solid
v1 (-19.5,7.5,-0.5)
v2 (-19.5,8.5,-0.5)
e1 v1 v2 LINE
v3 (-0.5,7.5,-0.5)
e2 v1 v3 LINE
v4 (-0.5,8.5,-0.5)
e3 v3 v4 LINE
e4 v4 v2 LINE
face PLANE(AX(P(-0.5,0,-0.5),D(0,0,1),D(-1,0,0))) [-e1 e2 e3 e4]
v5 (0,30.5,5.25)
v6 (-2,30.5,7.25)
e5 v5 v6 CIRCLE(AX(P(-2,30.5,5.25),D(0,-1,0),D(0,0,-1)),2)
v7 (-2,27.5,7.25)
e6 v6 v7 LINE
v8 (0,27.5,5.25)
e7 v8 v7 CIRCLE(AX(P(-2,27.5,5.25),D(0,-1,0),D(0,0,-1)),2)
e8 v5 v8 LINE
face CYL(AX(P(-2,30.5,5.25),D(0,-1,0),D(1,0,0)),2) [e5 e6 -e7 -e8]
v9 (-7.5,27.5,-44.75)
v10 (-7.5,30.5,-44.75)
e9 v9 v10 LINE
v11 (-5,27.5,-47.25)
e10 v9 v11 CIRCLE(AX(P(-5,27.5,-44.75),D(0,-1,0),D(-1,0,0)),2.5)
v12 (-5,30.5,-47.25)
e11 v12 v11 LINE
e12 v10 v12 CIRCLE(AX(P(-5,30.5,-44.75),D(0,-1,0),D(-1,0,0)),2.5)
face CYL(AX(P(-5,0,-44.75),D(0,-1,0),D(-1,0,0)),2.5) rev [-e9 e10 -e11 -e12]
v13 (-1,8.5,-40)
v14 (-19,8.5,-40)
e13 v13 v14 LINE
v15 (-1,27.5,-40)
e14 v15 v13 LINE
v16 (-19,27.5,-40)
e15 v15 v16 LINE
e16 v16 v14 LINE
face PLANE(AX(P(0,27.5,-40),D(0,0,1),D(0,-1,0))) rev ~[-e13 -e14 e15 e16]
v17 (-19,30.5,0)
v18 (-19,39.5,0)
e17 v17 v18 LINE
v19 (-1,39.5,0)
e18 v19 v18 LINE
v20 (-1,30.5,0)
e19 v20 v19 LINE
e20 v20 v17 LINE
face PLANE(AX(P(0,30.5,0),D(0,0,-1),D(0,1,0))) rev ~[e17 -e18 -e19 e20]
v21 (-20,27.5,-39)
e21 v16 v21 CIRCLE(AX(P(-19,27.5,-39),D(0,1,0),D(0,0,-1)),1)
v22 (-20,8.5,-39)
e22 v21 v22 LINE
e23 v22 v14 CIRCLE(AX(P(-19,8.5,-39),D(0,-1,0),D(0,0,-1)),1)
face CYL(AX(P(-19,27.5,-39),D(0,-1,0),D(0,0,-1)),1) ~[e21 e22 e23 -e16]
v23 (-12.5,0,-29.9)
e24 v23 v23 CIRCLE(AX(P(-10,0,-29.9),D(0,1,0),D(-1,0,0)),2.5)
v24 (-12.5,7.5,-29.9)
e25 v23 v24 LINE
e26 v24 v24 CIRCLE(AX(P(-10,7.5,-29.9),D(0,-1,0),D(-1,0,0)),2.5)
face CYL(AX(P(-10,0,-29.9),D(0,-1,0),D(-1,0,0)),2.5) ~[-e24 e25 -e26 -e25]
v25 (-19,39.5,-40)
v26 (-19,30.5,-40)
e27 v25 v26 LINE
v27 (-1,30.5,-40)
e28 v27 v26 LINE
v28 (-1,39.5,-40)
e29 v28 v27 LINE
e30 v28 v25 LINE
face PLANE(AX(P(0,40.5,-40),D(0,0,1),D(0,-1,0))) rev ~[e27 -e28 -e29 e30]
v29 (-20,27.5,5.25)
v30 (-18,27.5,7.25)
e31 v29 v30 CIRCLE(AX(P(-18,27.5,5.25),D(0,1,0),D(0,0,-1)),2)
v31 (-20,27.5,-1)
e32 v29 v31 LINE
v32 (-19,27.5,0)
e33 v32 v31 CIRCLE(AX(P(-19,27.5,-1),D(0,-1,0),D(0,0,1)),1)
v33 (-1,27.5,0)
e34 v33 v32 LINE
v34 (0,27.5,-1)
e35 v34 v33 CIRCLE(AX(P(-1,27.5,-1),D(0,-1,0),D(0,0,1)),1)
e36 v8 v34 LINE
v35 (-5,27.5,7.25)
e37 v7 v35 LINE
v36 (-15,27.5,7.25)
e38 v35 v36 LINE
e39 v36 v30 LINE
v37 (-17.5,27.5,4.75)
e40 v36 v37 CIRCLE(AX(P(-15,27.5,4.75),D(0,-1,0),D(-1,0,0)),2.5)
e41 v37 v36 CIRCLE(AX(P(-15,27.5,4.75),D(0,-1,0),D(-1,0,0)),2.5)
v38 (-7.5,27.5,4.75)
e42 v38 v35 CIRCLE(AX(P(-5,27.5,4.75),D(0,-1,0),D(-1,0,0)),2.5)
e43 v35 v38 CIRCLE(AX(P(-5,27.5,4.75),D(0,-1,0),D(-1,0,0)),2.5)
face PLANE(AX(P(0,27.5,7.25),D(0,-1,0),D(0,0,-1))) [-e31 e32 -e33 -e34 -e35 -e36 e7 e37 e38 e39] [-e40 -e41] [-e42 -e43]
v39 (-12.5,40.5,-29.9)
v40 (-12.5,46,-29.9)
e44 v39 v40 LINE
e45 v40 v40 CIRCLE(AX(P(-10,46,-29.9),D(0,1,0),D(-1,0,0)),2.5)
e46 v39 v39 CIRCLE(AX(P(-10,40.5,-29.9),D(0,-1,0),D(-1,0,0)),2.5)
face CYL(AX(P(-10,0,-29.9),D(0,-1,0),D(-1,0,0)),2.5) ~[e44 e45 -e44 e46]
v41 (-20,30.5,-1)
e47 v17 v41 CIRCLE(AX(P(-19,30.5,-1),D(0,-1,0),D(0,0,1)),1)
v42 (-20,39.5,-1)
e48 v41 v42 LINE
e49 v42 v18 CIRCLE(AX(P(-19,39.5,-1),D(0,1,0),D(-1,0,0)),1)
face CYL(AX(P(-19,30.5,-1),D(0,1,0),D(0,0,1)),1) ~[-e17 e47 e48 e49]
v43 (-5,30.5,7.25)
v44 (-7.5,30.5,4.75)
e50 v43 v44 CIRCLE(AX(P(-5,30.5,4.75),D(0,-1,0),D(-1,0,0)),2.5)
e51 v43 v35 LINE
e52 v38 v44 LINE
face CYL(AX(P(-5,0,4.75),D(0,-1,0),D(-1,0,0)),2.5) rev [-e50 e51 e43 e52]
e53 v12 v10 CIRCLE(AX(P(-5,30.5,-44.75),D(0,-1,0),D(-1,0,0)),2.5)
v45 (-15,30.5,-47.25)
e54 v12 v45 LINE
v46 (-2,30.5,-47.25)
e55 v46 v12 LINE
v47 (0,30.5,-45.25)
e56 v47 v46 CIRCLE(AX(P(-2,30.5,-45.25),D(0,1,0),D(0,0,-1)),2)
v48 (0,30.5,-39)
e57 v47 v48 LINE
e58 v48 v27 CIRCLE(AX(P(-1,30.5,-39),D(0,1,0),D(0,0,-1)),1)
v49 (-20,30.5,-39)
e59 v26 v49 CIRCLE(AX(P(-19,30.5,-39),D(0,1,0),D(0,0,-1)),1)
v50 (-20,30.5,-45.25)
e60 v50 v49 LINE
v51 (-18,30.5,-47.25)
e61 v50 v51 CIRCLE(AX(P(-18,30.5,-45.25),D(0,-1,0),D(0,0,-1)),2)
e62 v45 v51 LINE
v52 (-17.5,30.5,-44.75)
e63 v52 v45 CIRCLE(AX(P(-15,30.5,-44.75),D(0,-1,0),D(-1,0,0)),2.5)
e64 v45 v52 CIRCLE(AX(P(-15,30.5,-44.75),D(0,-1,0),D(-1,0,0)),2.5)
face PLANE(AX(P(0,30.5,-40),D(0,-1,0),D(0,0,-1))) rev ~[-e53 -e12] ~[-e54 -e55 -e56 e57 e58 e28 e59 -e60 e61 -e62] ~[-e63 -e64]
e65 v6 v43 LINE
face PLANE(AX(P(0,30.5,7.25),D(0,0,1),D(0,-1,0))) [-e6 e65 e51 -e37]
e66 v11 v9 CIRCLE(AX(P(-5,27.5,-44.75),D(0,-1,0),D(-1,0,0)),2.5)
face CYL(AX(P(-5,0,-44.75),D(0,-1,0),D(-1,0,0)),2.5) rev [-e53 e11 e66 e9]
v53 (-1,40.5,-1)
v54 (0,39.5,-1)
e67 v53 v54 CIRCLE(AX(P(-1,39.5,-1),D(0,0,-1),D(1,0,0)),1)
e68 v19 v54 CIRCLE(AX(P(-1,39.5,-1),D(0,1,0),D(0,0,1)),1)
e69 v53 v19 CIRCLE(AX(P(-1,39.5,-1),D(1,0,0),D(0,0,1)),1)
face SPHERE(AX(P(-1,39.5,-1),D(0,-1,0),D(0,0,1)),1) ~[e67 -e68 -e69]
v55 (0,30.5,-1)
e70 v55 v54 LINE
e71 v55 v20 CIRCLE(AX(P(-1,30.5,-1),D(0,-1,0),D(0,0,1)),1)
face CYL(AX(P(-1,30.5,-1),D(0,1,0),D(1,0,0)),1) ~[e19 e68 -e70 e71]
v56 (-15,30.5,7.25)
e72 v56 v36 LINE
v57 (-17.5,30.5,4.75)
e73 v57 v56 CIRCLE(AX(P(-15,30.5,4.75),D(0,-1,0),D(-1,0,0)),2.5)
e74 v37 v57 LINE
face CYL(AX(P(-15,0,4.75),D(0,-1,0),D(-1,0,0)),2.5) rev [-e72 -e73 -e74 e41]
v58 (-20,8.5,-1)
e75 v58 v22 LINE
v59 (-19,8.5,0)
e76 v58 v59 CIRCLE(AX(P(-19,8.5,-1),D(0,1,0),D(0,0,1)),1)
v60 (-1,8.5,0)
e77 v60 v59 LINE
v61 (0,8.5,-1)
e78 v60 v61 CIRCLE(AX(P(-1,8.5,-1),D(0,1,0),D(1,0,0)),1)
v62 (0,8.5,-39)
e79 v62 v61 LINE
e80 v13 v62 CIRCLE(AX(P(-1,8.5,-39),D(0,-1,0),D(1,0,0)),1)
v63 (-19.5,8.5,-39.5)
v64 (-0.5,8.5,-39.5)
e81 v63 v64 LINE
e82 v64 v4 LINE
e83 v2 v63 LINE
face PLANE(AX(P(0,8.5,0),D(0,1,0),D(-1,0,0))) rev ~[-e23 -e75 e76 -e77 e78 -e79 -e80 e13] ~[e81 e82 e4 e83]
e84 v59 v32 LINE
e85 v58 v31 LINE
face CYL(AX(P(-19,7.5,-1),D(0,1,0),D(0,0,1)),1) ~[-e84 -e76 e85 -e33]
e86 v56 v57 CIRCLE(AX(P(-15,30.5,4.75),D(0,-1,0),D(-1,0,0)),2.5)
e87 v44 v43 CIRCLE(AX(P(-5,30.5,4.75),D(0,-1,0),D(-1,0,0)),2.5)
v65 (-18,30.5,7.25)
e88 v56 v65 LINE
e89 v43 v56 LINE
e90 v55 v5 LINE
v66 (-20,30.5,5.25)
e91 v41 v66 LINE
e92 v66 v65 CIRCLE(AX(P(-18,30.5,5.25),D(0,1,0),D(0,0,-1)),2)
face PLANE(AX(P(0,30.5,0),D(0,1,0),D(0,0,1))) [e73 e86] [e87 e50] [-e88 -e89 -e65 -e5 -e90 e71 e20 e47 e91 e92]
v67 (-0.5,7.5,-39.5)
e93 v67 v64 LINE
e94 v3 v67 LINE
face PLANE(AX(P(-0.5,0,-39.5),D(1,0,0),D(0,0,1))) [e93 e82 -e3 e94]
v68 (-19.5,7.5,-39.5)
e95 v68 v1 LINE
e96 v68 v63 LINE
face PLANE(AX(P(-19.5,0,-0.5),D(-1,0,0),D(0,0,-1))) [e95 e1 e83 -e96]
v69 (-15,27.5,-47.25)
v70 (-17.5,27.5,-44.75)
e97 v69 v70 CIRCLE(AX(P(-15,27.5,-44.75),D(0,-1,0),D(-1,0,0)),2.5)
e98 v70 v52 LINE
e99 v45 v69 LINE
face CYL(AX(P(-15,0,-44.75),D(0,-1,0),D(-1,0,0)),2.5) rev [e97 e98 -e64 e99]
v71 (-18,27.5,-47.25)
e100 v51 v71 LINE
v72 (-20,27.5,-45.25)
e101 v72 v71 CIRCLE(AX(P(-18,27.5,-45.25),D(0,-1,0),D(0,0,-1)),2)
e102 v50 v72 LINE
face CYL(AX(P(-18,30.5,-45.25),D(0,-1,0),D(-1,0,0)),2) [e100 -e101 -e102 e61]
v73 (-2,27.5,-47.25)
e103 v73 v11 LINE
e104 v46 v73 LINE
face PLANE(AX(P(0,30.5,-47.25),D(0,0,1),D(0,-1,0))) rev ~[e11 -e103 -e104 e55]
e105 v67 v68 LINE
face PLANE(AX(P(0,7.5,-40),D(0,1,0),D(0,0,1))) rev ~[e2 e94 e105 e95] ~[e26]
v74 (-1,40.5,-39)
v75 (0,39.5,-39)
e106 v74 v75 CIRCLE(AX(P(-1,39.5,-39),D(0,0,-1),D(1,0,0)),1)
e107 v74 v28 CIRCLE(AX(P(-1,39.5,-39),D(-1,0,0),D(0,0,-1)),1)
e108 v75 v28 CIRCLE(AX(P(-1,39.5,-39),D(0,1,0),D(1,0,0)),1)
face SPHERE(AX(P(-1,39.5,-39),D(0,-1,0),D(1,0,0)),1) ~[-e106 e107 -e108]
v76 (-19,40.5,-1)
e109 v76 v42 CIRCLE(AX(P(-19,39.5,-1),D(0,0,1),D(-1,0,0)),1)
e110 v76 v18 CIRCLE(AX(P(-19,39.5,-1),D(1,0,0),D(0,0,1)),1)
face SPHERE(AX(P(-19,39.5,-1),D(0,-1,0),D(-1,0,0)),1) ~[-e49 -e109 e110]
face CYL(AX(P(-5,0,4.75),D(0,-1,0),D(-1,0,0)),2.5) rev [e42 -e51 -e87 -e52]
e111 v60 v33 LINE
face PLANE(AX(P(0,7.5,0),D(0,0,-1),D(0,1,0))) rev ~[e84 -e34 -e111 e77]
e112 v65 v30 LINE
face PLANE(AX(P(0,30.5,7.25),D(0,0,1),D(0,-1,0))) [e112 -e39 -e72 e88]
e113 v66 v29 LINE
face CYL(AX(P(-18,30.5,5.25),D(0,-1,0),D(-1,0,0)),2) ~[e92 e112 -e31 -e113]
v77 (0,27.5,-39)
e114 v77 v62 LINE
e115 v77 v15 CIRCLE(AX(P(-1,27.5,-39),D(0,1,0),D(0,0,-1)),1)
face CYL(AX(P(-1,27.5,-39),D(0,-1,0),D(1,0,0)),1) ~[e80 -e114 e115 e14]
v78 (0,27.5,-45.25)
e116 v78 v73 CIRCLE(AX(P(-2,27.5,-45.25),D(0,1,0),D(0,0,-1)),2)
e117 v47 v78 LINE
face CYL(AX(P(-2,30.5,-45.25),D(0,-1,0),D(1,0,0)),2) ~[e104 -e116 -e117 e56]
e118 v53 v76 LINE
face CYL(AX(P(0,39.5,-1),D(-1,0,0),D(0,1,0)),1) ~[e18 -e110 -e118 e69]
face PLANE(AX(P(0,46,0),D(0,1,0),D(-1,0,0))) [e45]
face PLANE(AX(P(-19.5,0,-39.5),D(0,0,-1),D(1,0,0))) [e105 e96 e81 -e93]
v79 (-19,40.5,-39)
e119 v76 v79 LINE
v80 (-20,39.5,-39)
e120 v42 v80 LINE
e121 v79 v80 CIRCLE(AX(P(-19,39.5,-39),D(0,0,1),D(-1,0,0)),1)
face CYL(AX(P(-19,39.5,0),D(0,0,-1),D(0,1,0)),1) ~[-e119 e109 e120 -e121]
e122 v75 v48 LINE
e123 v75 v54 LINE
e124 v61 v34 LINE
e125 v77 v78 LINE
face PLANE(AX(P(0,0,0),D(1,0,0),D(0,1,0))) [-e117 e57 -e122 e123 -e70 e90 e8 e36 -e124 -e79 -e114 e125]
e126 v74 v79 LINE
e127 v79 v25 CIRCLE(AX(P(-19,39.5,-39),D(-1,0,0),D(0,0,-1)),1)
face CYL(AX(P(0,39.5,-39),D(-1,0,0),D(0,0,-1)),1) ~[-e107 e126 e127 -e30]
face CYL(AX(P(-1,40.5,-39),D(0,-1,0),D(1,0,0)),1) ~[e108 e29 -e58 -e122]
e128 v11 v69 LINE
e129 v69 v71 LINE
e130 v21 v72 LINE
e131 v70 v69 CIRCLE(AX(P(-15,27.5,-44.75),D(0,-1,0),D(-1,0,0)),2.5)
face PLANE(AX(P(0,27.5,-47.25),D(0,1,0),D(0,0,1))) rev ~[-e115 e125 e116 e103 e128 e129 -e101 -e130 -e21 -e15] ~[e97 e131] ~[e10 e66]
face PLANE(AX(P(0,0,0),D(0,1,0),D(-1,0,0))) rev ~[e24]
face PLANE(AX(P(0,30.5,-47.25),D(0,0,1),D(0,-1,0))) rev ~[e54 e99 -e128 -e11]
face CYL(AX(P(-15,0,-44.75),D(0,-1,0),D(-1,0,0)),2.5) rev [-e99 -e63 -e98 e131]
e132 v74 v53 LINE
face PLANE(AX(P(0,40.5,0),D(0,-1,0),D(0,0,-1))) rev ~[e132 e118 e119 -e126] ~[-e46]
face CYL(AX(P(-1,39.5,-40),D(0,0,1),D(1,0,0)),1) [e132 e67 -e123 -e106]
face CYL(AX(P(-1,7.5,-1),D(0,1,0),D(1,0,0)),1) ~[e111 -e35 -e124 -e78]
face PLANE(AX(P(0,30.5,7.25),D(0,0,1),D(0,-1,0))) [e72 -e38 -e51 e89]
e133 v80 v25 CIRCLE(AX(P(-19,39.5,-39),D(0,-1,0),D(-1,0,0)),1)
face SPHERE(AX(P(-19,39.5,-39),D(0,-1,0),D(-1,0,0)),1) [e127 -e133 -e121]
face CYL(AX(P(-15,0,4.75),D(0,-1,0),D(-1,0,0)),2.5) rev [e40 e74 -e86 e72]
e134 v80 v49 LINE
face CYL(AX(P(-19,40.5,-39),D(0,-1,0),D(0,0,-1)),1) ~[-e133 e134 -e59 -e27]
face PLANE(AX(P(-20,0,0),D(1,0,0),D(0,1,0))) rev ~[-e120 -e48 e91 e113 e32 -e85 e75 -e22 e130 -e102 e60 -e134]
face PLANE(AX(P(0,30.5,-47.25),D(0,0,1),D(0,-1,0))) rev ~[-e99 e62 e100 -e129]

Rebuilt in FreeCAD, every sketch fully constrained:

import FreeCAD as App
import Part
import Sketcher
Q = App.Units.Quantity


def edges_at(feature, points):
    """Names of the edges that pass closest to the given points."""
    edges = feature.Shape.Edges
    near = lambda p: min(range(len(edges)), key=lambda i: edges[i].distToShape(Part.Vertex(*p))[0])
    return sorted({f"Edge{near(p) + 1}" for p in points})


def add_polygon(sketch, points):
    """Adds a closed chain of lines whose ends are joined by coincident constraints."""
    first, n = sketch.GeometryCount, len(points)
    for a, b in zip(points, points[1:] + points[:1]):
        sketch.addGeometry(Part.LineSegment(App.Vector(*a, 0), App.Vector(*b, 0)), False)
    for i in range(n):
        sketch.addConstraint(Sketcher.Constraint("Coincident", first + i, 2, first + (i + 1) % n, 1))

doc = App.newDocument("Part")
params = doc.addObject("Spreadsheet::Sheet", "Params")
for row, (alias, value) in enumerate([
    ("sketch1_width", "20 mm"),
    ("sketch1_width2", "3 mm"),
    ("sketch1_height", "40 mm"),
    ("sketch1_height2", "7.25 mm"),
    ("pad1_length", "20 mm"),
    ("sketch2_diameter", "5 mm"),
    ("pocket1_length", "100 mm"),
    ("sketch3_diameter", "5 mm"),
    ("pad2_length", "46 mm"),
    ("fillet_radius", "2 mm"),
    ("fillet2_radius", "1 mm"),
    ("sketch4_width", "20 mm"),
    ("sketch4_height", "40 mm"),
    ("pocket2_length", "8.5 mm"),
], start=1):
    params.set(f"A{row}", alias)
    params.set(f"B{row}", "=" + value)
    params.setAlias(f"B{row}", alias)

body = doc.addObject("PartDesign::Body", "Body")

sketch1 = doc.addObject("Sketcher::SketchObject", "Sketch")
body.addObject(sketch1)
sketch1.AttachmentSupport = (doc.YZ_Plane, [""])
sketch1.MapMode = "FlatFace"
add_polygon(sketch1, [(27.5, 0), (7.5, 0), (7.5, -40), (27.5, -40), (27.5, -47.25), (30.5, -47.25), (30.5, -40), (40.5, -40), (40.5, 0), (30.5, 0), (30.5, 7.25), (27.5, 7.25)])
sketch1.addConstraint([
    Sketcher.Constraint("Horizontal", 0),
    Sketcher.Constraint("Vertical", 1),
    Sketcher.Constraint("Horizontal", 2),
    Sketcher.Constraint("Vertical", 3),
    Sketcher.Constraint("Horizontal", 4),
    Sketcher.Constraint("Vertical", 5),
    Sketcher.Constraint("Horizontal", 6),
    Sketcher.Constraint("Vertical", 7),
    Sketcher.Constraint("Horizontal", 8),
    Sketcher.Constraint("Vertical", 9),
    Sketcher.Constraint("Horizontal", 10),
    Sketcher.Constraint("Vertical", 11),
    Sketcher.Constraint("PointOnObject", 0, 2, -1),
    Sketcher.Constraint("PointOnObject", 7, 2, -1),
    Sketcher.Constraint("Horizontal", 2, 2, 5, 2),
    Sketcher.Constraint("Vertical", 5, 2, 8, 2),
    Sketcher.Constraint("Vertical", 3, 2, 10, 2),
    Sketcher.Constraint("Equal", 5, 9),
    Sketcher.Constraint("DistanceX", 0, 2, 0, 1, Q("20 mm")),
    Sketcher.Constraint("DistanceX", 4, 1, 4, 2, Q("3 mm")),
    Sketcher.Constraint("DistanceY", 1, 2, 1, 1, Q("40 mm")),
    Sketcher.Constraint("DistanceY", 3, 2, 3, 1, Q("7.25 mm")),
    Sketcher.Constraint("DistanceX", -1, 1, 0, 2, Q("7.5 mm")),
    Sketcher.Constraint("DistanceX", -1, 1, 6, 2, Q("40.5 mm")),
])
sketch1.setExpression("Constraints[30]", "Params.sketch1_width")
sketch1.setExpression("Constraints[31]", "Params.sketch1_width2")
sketch1.setExpression("Constraints[32]", "Params.sketch1_height")
sketch1.setExpression("Constraints[33]", "Params.sketch1_height2")
pad1 = doc.addObject("PartDesign::Pad", "Pad")
body.addObject(pad1)
pad1.Profile = sketch1
pad1.setExpression("Length", "Params.pad1_length")
pad1.Reversed = True

sketch2 = doc.addObject("Sketcher::SketchObject", "Sketch001")
body.addObject(sketch2)
sketch2.AttachmentSupport = (doc.XZ_Plane, [""])
sketch2.MapMode = "FlatFace"
sketch2.addGeometry([
    Part.Circle(App.Vector(-15, 4.75, 0), App.Vector(0, 0, 1), 2.5),
    Part.Circle(App.Vector(-5, 4.75, 0), App.Vector(0, 0, 1), 2.5),
    Part.Circle(App.Vector(-5, -44.75, 0), App.Vector(0, 0, 1), 2.5),
    Part.Circle(App.Vector(-15, -44.75, 0), App.Vector(0, 0, 1), 2.5),
], False)
sketch2.addConstraint([
    Sketcher.Constraint("Equal", 0, 1),
    Sketcher.Constraint("Equal", 1, 2),
    Sketcher.Constraint("Equal", 2, 3),
    Sketcher.Constraint("Horizontal", 0, 3, 1, 3),
    Sketcher.Constraint("Horizontal", 2, 3, 3, 3),
    Sketcher.Constraint("Vertical", 1, 3, 2, 3),
    Sketcher.Constraint("Vertical", 0, 3, 3, 3),
    Sketcher.Constraint("Diameter", 0, Q("5 mm")),
    Sketcher.Constraint("DistanceX", 1, 3, -1, 1, Q("5 mm")),
    Sketcher.Constraint("DistanceX", 0, 3, 1, 3, Q("10 mm")),
    Sketcher.Constraint("DistanceY", 2, 3, 1, 3, Q("49.5 mm")),
    Sketcher.Constraint("DistanceY", -1, 1, 0, 3, Q("4.75 mm")),
])
sketch2.setExpression("Constraints[7]", "Params.sketch2_diameter")
pocket1 = doc.addObject("PartDesign::Pocket", "Pocket")
body.addObject(pocket1)
pocket1.Profile = sketch2
pocket1.setExpression("Length", "Params.pocket1_length")

sketch3 = doc.addObject("Sketcher::SketchObject", "Sketch002")
body.addObject(sketch3)
sketch3.AttachmentSupport = (doc.XZ_Plane, [""])
sketch3.MapMode = "FlatFace"
sketch3.addGeometry(Part.Circle(App.Vector(-10, -29.9, 0), App.Vector(0, 0, 1), 2.5), False)
sketch3.addConstraint([
    Sketcher.Constraint("Diameter", 0, Q("5 mm")),
    Sketcher.Constraint("DistanceX", 0, 3, -1, 1, Q("10 mm")),
    Sketcher.Constraint("DistanceY", 0, 3, -1, 1, Q("29.9 mm")),
])
sketch3.setExpression("Constraints[0]", "Params.sketch3_diameter")
pad2 = doc.addObject("PartDesign::Pad", "Pad001")
body.addObject(pad2)
pad2.Profile = sketch3
pad2.setExpression("Length", "Params.pad2_length")
pad2.Reversed = True
doc.recompute()

fillet = doc.addObject("PartDesign::Fillet", "Fillet")
body.addObject(fillet)
fillet.Base = (pad2, edges_at(pad2, [
    (-20, 29, 7.25),
    (0, 29, 7.25),
    (0, 29, -47.25),
    (-20, 29, -47.25),
]))
fillet.setExpression("Radius", "Params.fillet_radius")
doc.recompute()

fillet2 = doc.addObject("PartDesign::Fillet", "Fillet001")
body.addObject(fillet2)
fillet2.Base = (fillet, edges_at(fillet, [
    (0, 17.5, 0),
    (0, 35.5, 0),
    (0, 35.5, -40),
    (0, 17.5, -40),
    (-20, 35.5, -40),
    (-20, 17.5, -40),
    (-20, 35.5, 0),
    (-20, 17.5, 0),
    (-20, 40.5, -20),
    (-10, 40.5, 0),
    (0, 40.5, -20),
    (-10, 40.5, -40),
]))
fillet2.setExpression("Radius", "Params.fillet2_radius")

sketch4 = doc.addObject("Sketcher::SketchObject", "Sketch003")
body.addObject(sketch4)
sketch4.AttachmentSupport = (doc.XZ_Plane, [""])
sketch4.MapMode = "FlatFace"
add_polygon(sketch4, [(0, 0), (0, -40), (-20, -40), (-20, 0)])
add_polygon(sketch4, [(-19.5, -39.5), (-0.5, -39.5), (-0.5, -0.5), (-19.5, -0.5)])
sketch4.addConstraint([
    Sketcher.Constraint("Vertical", 0),
    Sketcher.Constraint("Horizontal", 1),
    Sketcher.Constraint("Vertical", 2),
    Sketcher.Constraint("Horizontal", 3),
    Sketcher.Constraint("Horizontal", 4),
    Sketcher.Constraint("Vertical", 5),
    Sketcher.Constraint("Horizontal", 6),
    Sketcher.Constraint("Vertical", 7),
    Sketcher.Constraint("Coincident", 3, 2, -1, 1),
    Sketcher.Constraint("DistanceX", 1, 2, 1, 1, Q("20 mm")),
    Sketcher.Constraint("DistanceY", 0, 2, 0, 1, Q("40 mm")),
    Sketcher.Constraint("DistanceX", 4, 2, -1, 1, Q("0.5 mm")),
    Sketcher.Constraint("DistanceY", 5, 2, -1, 1, Q("0.5 mm")),
    Sketcher.Constraint("DistanceY", 0, 2, 4, 2, Q("0.5 mm")),
    Sketcher.Constraint("DistanceX", 2, 2, 6, 2, Q("0.5 mm")),
])
sketch4.setExpression("Constraints[17]", "Params.sketch4_width")
sketch4.setExpression("Constraints[18]", "Params.sketch4_height")
pocket2 = doc.addObject("PartDesign::Pocket", "Pocket001")
body.addObject(pocket2)
pocket2.Profile = sketch4
pocket2.setExpression("Length", "Params.pocket2_length")

doc.recompute()
